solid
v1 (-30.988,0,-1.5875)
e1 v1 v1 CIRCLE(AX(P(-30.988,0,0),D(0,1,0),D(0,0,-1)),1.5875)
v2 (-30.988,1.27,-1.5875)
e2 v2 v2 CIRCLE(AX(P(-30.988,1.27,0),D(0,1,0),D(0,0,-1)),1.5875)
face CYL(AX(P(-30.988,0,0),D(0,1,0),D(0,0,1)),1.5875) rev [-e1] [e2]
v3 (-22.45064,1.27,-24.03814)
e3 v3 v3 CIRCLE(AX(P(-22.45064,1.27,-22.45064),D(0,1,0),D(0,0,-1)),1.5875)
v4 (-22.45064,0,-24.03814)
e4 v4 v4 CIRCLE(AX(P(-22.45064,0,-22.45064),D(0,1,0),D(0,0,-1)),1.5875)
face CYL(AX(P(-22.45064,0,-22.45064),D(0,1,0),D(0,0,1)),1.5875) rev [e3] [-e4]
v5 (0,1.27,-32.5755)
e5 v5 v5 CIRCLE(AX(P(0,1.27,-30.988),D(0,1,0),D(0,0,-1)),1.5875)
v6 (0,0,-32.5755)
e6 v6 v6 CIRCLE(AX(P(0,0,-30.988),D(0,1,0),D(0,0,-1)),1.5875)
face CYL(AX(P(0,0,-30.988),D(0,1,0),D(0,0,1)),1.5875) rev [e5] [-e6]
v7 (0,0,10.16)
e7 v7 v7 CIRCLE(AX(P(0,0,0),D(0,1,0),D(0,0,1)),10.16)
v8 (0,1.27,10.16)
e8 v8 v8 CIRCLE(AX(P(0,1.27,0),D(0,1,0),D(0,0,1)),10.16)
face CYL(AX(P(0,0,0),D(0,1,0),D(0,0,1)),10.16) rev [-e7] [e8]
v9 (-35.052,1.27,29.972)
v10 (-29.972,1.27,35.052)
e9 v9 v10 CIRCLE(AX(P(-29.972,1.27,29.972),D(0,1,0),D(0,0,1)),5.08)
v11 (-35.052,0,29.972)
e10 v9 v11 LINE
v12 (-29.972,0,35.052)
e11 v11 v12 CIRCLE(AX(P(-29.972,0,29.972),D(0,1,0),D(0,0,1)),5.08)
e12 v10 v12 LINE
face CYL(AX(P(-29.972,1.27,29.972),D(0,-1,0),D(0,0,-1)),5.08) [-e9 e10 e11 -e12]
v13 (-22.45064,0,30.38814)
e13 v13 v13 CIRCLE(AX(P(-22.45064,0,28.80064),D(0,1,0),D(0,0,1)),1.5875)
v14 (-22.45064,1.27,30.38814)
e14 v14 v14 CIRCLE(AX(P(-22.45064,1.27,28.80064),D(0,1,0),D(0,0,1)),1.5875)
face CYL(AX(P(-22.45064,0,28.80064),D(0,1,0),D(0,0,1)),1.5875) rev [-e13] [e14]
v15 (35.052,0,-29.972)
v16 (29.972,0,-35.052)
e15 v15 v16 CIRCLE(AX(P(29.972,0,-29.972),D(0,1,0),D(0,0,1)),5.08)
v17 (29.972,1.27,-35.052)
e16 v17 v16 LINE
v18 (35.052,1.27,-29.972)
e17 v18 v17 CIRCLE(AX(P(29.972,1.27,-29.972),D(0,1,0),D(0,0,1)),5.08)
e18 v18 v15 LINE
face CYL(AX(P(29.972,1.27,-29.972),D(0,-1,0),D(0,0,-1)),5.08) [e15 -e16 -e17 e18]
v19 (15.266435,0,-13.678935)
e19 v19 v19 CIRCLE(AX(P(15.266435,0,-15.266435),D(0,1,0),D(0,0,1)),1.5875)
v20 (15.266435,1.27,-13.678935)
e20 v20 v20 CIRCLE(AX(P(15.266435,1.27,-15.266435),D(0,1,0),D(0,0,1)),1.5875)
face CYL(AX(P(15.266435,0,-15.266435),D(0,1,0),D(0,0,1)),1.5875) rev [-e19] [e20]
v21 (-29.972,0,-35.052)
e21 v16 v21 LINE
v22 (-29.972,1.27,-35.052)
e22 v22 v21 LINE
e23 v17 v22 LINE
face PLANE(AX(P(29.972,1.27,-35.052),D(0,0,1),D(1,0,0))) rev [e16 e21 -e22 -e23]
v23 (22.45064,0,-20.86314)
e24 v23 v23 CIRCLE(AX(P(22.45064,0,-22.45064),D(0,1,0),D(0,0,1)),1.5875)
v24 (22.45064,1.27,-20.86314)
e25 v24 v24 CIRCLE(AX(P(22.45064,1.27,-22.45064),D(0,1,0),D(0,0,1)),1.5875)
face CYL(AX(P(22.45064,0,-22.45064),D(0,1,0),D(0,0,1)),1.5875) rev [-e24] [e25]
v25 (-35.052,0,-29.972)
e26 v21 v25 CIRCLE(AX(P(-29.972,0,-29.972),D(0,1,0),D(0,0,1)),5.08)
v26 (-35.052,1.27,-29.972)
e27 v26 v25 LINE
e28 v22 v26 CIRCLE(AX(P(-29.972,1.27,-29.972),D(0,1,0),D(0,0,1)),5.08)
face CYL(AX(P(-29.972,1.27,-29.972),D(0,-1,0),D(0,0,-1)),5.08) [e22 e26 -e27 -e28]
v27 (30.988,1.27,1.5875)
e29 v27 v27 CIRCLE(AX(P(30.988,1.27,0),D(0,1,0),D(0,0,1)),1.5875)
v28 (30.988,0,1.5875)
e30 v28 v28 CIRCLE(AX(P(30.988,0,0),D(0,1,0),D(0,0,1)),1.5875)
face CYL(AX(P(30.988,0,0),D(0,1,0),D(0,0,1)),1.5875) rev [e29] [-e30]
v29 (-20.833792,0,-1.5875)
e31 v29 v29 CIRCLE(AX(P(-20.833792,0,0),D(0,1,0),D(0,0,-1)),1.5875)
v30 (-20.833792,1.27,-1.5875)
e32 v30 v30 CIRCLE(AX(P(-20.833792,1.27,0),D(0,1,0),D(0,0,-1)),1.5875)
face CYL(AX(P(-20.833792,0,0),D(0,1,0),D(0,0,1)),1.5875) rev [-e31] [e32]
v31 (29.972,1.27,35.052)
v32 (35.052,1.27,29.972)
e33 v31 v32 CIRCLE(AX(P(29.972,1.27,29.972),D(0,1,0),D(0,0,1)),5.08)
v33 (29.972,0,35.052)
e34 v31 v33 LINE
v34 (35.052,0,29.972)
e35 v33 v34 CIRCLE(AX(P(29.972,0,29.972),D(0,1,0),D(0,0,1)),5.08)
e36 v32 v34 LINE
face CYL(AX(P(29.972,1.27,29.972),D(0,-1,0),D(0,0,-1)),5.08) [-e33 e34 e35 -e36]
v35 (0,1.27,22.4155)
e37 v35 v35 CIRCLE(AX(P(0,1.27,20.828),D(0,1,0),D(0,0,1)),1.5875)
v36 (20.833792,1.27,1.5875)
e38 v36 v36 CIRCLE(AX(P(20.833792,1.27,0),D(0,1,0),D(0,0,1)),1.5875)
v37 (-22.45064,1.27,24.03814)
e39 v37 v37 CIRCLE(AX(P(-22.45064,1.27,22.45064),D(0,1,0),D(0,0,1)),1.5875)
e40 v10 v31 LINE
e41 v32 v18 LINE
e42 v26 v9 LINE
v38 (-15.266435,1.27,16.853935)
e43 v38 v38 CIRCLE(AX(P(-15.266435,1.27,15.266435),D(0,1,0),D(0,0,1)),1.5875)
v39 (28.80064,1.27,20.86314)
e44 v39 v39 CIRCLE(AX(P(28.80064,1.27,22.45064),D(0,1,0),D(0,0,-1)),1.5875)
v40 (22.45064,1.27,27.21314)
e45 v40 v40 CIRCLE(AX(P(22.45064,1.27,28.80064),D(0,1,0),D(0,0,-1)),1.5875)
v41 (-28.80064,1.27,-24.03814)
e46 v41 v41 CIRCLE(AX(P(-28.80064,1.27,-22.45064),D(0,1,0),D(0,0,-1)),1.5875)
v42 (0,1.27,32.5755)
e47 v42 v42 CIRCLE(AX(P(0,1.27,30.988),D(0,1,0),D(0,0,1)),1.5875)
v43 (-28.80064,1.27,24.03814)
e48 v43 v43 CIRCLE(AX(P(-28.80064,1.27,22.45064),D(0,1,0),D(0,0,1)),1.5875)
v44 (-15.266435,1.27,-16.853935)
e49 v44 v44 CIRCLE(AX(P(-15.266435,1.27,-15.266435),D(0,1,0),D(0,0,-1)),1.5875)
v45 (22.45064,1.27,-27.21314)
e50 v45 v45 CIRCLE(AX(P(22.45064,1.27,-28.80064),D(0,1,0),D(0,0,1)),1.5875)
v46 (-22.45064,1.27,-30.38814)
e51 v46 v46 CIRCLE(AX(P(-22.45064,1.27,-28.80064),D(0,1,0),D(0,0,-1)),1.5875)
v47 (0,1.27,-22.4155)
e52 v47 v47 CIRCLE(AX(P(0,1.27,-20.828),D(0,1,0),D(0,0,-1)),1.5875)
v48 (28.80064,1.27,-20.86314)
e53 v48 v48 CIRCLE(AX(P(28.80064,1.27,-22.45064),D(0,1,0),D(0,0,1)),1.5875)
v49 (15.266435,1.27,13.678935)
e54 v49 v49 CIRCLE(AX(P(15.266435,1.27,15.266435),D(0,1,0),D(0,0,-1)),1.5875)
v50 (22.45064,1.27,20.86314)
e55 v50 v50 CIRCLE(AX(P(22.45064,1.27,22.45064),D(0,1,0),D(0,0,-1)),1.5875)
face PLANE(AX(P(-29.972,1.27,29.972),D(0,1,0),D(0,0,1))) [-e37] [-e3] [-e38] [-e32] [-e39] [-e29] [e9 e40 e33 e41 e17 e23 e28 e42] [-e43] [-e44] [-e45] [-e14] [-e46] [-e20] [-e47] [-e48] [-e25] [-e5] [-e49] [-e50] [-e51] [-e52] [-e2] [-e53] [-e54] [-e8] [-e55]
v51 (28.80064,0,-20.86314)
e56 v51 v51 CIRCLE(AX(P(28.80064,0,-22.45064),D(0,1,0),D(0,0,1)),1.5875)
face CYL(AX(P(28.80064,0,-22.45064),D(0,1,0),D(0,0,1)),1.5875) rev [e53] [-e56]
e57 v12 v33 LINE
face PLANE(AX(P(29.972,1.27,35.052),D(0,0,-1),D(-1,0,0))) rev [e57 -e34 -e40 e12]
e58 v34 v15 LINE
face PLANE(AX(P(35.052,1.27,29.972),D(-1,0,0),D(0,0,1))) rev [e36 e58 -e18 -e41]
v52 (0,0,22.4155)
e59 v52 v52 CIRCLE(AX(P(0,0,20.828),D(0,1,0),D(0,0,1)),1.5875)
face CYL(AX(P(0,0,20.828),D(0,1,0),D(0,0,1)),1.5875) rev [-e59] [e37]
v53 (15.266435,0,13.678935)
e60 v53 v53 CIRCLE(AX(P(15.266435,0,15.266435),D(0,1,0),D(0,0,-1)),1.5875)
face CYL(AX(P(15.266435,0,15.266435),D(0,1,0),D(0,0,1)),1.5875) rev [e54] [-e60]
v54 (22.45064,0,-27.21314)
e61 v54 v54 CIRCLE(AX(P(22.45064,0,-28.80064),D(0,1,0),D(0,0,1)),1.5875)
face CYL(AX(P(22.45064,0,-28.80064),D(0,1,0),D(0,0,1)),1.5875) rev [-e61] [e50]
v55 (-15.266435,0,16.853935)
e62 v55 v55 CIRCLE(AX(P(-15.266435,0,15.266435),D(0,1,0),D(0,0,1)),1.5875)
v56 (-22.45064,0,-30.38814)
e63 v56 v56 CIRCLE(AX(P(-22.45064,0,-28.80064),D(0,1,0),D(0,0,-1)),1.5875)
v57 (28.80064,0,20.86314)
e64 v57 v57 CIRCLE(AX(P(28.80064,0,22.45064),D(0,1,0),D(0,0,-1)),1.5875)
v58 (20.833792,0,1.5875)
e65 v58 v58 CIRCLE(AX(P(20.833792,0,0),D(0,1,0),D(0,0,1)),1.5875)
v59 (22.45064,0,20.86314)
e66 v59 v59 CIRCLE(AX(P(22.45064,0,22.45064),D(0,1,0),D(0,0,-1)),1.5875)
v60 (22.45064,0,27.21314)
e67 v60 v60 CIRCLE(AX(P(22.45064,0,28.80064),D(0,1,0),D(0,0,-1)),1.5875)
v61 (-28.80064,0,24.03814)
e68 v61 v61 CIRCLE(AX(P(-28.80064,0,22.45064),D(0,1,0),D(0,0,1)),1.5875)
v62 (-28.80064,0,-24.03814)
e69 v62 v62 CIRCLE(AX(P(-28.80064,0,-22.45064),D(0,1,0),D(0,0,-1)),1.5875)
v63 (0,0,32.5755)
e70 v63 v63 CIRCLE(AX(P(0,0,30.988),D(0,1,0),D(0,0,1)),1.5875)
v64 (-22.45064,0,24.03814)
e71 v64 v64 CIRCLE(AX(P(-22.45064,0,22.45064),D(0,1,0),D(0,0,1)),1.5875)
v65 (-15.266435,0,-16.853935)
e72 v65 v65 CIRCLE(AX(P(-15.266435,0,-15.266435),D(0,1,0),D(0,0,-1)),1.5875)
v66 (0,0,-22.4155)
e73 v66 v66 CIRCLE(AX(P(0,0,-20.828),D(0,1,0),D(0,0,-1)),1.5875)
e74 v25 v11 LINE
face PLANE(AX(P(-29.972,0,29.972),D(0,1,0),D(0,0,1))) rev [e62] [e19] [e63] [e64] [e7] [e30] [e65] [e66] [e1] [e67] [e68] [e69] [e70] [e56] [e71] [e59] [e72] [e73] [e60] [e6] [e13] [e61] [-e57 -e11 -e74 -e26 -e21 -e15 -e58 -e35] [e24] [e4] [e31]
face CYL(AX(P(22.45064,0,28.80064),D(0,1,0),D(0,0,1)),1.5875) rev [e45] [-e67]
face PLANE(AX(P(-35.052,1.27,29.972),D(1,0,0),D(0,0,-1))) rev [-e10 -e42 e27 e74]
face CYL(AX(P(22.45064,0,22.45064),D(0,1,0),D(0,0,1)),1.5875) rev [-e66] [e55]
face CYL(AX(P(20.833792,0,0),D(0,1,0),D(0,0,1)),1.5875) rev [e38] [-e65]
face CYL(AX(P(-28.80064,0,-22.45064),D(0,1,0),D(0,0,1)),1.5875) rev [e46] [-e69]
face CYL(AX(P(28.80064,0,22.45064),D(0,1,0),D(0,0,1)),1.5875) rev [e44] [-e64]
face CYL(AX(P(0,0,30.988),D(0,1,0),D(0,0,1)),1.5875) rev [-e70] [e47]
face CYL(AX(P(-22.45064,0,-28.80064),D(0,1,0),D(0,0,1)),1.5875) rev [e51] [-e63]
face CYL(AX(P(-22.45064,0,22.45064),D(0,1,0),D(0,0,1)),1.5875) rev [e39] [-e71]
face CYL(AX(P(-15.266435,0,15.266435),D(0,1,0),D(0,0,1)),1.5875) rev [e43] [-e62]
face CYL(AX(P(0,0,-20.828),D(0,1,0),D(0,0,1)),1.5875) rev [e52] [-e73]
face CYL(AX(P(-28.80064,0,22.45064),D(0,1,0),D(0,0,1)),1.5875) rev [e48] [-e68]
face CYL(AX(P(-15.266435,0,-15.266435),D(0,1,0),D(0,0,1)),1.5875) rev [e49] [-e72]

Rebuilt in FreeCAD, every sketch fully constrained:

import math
import FreeCAD as App
import Part
import Sketcher
from FreeCAD import Vector
Q = App.Units.Quantity

doc = App.newDocument("Part")
body = doc.addObject("PartDesign::Body", "Body")

# Sketch on XZ plane
sketch1 = doc.addObject("Sketcher::SketchObject", "Sketch")
body.addObject(sketch1)
sketch1.AttachmentSupport = (doc.XZ_Plane, [""])
sketch1.MapMode = "FlatFace"
sketch1.addGeometry([
    Part.LineSegment(Vector(-30, 35, 0), Vector(30, 35, 0)),  # 0
    Part.ArcOfCircle(Part.Circle(Vector(30, 30, 0), Vector(0, 0, 1), 5), math.radians(0), math.radians(90)),  # 1
    Part.LineSegment(Vector(35, 30, 0), Vector(35, -30, 0)),  # 2
    Part.ArcOfCircle(Part.Circle(Vector(30, -30, 0), Vector(0, 0, 1), 5), math.radians(-90), math.radians(0)),  # 3
    Part.LineSegment(Vector(30, -35, 0), Vector(-30, -35, 0)),  # 4
    Part.ArcOfCircle(Part.Circle(Vector(-30, -30, 0), Vector(0, 0, 1), 5), math.radians(-180), math.radians(-90)),  # 5
    Part.LineSegment(Vector(-35, -30, 0), Vector(-35, 30, 0)),  # 6
    Part.ArcOfCircle(Part.Circle(Vector(-30, 30, 0), Vector(0, 0, 1), 5), math.radians(90), math.radians(180)),  # 7
], False)
sketch1.addConstraint([
    Sketcher.Constraint("Tangent", 0, 2, 1, 2),
    Sketcher.Constraint("Tangent", 1, 1, 2, 1),
    Sketcher.Constraint("Tangent", 2, 2, 3, 2),
    Sketcher.Constraint("Tangent", 3, 1, 4, 1),
    Sketcher.Constraint("Tangent", 4, 2, 5, 2),
    Sketcher.Constraint("Tangent", 5, 1, 6, 1),
    Sketcher.Constraint("Tangent", 6, 2, 7, 2),
    Sketcher.Constraint("Tangent", 7, 1, 0, 1),
    Sketcher.Constraint("Horizontal", 0),
    Sketcher.Constraint("Vertical", 2),
    Sketcher.Constraint("Horizontal", 4),
    Sketcher.Constraint("Vertical", 6),
    Sketcher.Constraint("Equal", 1, 3),
    Sketcher.Constraint("Equal", 3, 5),
    Sketcher.Constraint("Equal", 5, 7),
    Sketcher.Constraint("Symmetric", 1, 3, 5, 3, -1, 1),
    Sketcher.Constraint("Equal", 4, 2),
    Sketcher.Constraint("Radius", 1, Q("0.2 in")),
    Sketcher.Constraint("DistanceX", 0, 1, 0, 2, Q("2.36 in")),
])
pad1 = doc.addObject("PartDesign::Pad", "Pad")
body.addObject(pad1)
pad1.Profile = sketch1
pad1.Length = Q("0.05 in")
pad1.Reversed = True

# Sketch on XZ plane
sketch2 = doc.addObject("Sketcher::SketchObject", "Sketch001")
body.addObject(sketch2)
sketch2.AttachmentSupport = (doc.XZ_Plane, [""])
sketch2.MapMode = "FlatFace"
sketch2.AttachmentOffset = App.Placement(Vector(0, 0, -0.05 * 25.4), App.Rotation())
sketch2.addGeometry([
    Part.Circle(Vector(0, 0, 0), Vector(0, 0, 1), 10.2),  # 0
    Part.Circle(Vector(20.8, 0, 0), Vector(0, 0, 1), 1.6),  # 1
    Part.Circle(Vector(31, 0, 0), Vector(0, 0, 1), 1.6),  # 2
    Part.Circle(Vector(-20.8, 0, 0), Vector(0, 0, 1), 1.6),  # 3
    Part.Circle(Vector(-31, 0, 0), Vector(0, 0, 1), 1.6),  # 4
    Part.Circle(Vector(0, 20.8, 0), Vector(0, 0, 1), 1.6),  # 5
    Part.Circle(Vector(0, -31, 0), Vector(0, 0, 1), 1.6),  # 6
    Part.Circle(Vector(0, -20.8, 0), Vector(0, 0, 1), 1.6),  # 7
    Part.Circle(Vector(-15.3, 15.3, 0), Vector(0, 0, 1), 1.6),  # 8
    Part.Circle(Vector(-22.5, 22.5, 0), Vector(0, 0, 1), 1.6),  # 9
    Part.Circle(Vector(-28.8, 22.5, 0), Vector(0, 0, 1), 1.6),  # 10
    Part.Circle(Vector(-22.5, 28.8, 0), Vector(0, 0, 1), 1.6),  # 11
    Part.Circle(Vector(28.8, 22.5, 0), Vector(0, 0, 1), 1.6),  # 12
    Part.Circle(Vector(22.5, 28.8, 0), Vector(0, 0, 1), 1.6),  # 13
    Part.Circle(Vector(22.5, 22.5, 0), Vector(0, 0, 1), 1.6),  # 14
    Part.Circle(Vector(15.3, 15.3, 0), Vector(0, 0, 1), 1.6),  # 15
    Part.Circle(Vector(28.8, -22.5, 0), Vector(0, 0, 1), 1.6),  # 16
    Part.Circle(Vector(22.5, -28.8, 0), Vector(0, 0, 1), 1.6),  # 17
    Part.Circle(Vector(22.5, -22.5, 0), Vector(0, 0, 1), 1.6),  # 18
    Part.Circle(Vector(15.3, -15.3, 0), Vector(0, 0, 1), 1.6),  # 19
    Part.Circle(Vector(-22.5, -28.8, 0), Vector(0, 0, 1), 1.6),  # 20
    Part.Circle(Vector(-28.8, -22.5, 0), Vector(0, 0, 1), 1.6),  # 21
    Part.Circle(Vector(-15.3, -15.3, 0), Vector(0, 0, 1), 1.6),  # 22
    Part.Circle(Vector(-22.5, -22.5, 0), Vector(0, 0, 1), 1.6),  # 23
    Part.Circle(Vector(0, 31, 0), Vector(0, 0, 1), 1.6),  # 24
], False)
sketch2.addConstraint([
    Sketcher.Constraint("Coincident", 0, 3, -1, 1),
    Sketcher.Constraint("Equal", 1, 2),
    Sketcher.Constraint("Equal", 2, 3),
    Sketcher.Constraint("Equal", 3, 4),
    Sketcher.Constraint("Equal", 4, 5),
    Sketcher.Constraint("Equal", 5, 6),
    Sketcher.Constraint("Equal", 6, 7),
    Sketcher.Constraint("Equal", 7, 8),
    Sketcher.Constraint("Equal", 8, 9),
    Sketcher.Constraint("Equal", 9, 10),
    Sketcher.Constraint("Equal", 10, 11),
    Sketcher.Constraint("Equal", 11, 12),
    Sketcher.Constraint("Equal", 12, 13),
    Sketcher.Constraint("Equal", 13, 14),
    Sketcher.Constraint("Equal", 14, 15),
    Sketcher.Constraint("Equal", 15, 16),
    Sketcher.Constraint("Equal", 16, 17),
    Sketcher.Constraint("Equal", 17, 18),
    Sketcher.Constraint("Equal", 18, 19),
    Sketcher.Constraint("Equal", 19, 20),
    Sketcher.Constraint("Equal", 20, 21),
    Sketcher.Constraint("Equal", 21, 22),
    Sketcher.Constraint("Equal", 22, 23),
    Sketcher.Constraint("Equal", 23, 24),
    Sketcher.Constraint("Symmetric", 1, 3, 3, 3, -1, 1),
    Sketcher.Constraint("Symmetric", 2, 3, 4, 3, -1, 1),
    Sketcher.Constraint("Symmetric", 5, 3, 7, 3, -1, 1),
    Sketcher.Constraint("Symmetric", 10, 3, 16, 3, -1, 1),
    Sketcher.Constraint("Symmetric", 11, 3, 17, 3, -1, 1),
    Sketcher.Constraint("Symmetric", 9, 3, 18, 3, -1, 1),
    Sketcher.Constraint("Symmetric", 8, 3, 19, 3, -1, 1),
    Sketcher.Constraint("Symmetric", 13, 3, 20, 3, -1, 1),
    Sketcher.Constraint("Symmetric", 12, 3, 21, 3, -1, 1),
    Sketcher.Constraint("Symmetric", 15, 3, 22, 3, -1, 1),
    Sketcher.Constraint("Symmetric", 14, 3, 23, 3, -1, 1),
    Sketcher.Constraint("Symmetric", 6, 3, 24, 3, -1, 1),
    Sketcher.Constraint("Symmetric", 10, 3, 12, 3, -2),
    Sketcher.Constraint("Symmetric", 11, 3, 13, 3, -2),
    Sketcher.Constraint("Symmetric", 9, 3, 14, 3, -2),
    Sketcher.Constraint("Symmetric", 8, 3, 15, 3, -2),
    Sketcher.Constraint("PointOnObject", 1, 3, -1),
    Sketcher.Constraint("PointOnObject", 2, 3, -1),
    Sketcher.Constraint("PointOnObject", 5, 3, -2),
    Sketcher.Constraint("PointOnObject", 6, 3, -2),
    Sketcher.Constraint("Horizontal", 9, 3, 10, 3),
    Sketcher.Constraint("Vertical", 9, 3, 11, 3),
    Sketcher.Constraint("Diameter", 0, Q("0.8 in")),
    Sketcher.Constraint("Diameter", 1, Q("0.125 in")),
    Sketcher.Constraint("DistanceY", 6, 3, 7, 3, Q("0.4 in")),
    Sketcher.Constraint("DistanceX", -1, 1, 2, 3, Q("1.22 in")),
    Sketcher.Constraint("DistanceY", -1, 1, 5, 3, Q("0.82 in")),
    Sketcher.Constraint("DistanceX", 10, 3, 9, 3, Q("0.25 in")),
    Sketcher.Constraint("DistanceY", 9, 3, 11, 3, Q("0.25 in")),
    Sketcher.Constraint("DistanceX", 9, 3, -1, 1, Q("22.45064 mm")),
    Sketcher.Constraint("DistanceY", -1, 1, 9, 3, Q("22.45064 mm")),
    Sketcher.Constraint("DistanceX", 9, 3, 3, 3, Q("1.616848 mm")),
    Sketcher.Constraint("DistanceX", 8, 3, -1, 1, Q("15.266435 mm")),
    Sketcher.Constraint("DistanceY", -1, 1, 8, 3, Q("15.266435 mm")),
])
pocket1 = doc.addObject("PartDesign::Pocket", "Pocket")
body.addObject(pocket1)
pocket1.Profile = sketch2
pocket1.Type = "ThroughAll"
pocket1.Reversed = True

doc.recompute()
